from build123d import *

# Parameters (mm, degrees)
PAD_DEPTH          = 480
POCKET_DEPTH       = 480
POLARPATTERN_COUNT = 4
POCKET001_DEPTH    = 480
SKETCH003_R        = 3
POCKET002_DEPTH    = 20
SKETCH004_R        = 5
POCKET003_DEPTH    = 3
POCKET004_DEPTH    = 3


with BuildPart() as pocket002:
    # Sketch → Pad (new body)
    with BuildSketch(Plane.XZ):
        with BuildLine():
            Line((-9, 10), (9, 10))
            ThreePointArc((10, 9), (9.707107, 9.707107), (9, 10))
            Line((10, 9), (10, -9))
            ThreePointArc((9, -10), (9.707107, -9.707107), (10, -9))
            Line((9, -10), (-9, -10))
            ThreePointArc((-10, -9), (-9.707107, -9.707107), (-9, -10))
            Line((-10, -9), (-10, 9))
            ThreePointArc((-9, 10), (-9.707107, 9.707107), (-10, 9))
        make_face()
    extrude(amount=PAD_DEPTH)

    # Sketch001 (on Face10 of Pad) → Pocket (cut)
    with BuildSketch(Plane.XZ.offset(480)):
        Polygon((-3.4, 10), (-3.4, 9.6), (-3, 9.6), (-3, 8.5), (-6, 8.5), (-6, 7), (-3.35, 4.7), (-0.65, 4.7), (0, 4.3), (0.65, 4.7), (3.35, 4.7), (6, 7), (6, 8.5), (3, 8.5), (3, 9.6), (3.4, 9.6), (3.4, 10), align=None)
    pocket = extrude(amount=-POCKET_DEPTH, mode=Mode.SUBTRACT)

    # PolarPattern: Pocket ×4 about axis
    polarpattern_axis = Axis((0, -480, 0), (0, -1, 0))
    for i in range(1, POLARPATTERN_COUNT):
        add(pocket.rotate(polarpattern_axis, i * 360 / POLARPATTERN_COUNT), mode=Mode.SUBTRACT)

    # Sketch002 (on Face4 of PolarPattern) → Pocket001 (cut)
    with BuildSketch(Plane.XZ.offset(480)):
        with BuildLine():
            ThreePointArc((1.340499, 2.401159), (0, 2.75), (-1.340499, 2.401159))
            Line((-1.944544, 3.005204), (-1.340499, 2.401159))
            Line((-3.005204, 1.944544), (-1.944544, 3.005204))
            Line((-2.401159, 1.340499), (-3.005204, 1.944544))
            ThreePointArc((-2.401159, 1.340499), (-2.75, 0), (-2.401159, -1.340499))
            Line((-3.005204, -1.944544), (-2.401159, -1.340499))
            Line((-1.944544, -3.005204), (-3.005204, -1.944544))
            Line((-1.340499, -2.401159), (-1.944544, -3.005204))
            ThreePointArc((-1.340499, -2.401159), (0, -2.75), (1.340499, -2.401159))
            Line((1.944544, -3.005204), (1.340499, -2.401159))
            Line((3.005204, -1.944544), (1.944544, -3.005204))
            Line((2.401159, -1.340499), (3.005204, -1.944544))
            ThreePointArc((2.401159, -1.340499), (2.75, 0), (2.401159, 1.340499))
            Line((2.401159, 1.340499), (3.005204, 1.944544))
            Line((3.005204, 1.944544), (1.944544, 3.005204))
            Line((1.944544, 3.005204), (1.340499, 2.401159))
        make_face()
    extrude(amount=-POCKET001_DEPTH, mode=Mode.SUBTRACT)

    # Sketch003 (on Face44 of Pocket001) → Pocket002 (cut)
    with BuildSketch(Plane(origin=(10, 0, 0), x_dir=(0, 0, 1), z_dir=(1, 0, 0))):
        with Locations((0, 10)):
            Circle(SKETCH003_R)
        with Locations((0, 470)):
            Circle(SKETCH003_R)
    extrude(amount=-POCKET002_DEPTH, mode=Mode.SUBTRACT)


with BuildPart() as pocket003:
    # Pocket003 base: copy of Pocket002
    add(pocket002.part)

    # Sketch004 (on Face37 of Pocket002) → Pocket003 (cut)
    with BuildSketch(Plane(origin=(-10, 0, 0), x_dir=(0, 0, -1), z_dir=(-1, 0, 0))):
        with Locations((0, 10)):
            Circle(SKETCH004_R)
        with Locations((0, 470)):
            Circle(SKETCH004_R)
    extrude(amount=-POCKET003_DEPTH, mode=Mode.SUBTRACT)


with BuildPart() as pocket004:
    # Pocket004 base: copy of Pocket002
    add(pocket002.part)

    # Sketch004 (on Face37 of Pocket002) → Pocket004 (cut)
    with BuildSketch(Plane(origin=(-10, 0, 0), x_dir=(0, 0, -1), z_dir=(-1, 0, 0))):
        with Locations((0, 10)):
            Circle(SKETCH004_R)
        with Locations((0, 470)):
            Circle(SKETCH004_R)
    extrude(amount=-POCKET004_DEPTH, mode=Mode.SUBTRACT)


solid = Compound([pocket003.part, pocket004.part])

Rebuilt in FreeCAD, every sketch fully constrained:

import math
import FreeCAD as App
import Part
import Sketcher


def add_polygon(sketch, points):
    """Adds a closed chain of lines whose ends are joined by coincident constraints."""
    first, n = sketch.GeometryCount, len(points)
    for a, b in zip(points, points[1:] + points[:1]):
        sketch.addGeometry(Part.LineSegment(App.Vector(*a, 0), App.Vector(*b, 0)), False)
    for i in range(n):
        sketch.addConstraint(Sketcher.Constraint("Coincident", first + i, 2, first + (i + 1) % n, 1))

doc = App.newDocument("Part")
params = doc.addObject("Spreadsheet::Sheet", "Params")
for row, (alias, value) in enumerate([
    ("sketch1_radius", "0.999999 mm"),
    ("sketch1_width", "18 mm"),
    ("pad1_length", "480 mm"),
    ("sketch2_width", "3 mm"),
    ("sketch2_width2", "0.4 mm"),
    ("sketch2_width3", "2.7 mm"),
    ("sketch2_width4", "6.8 mm"),
    ("sketch2_height", "1.1 mm"),
    ("pocket1_length", "480 mm"),
    ("sketch3_length", "1.5 mm"),
    ("pocket2_length", "480 mm"),
    ("sketch4_diameter", "6 mm"),
    ("pocket3_length", "20 mm"),
    ("sketch5_diameter", "10 mm"),
    ("pocket4_length", "3 mm"),
    ("sketch6_diameter", "10 mm"),
    ("pocket5_length", "3 mm"),
], start=1):
    params.set(f"A{row}", alias)
    params.set(f"B{row}", "=" + value)
    params.setAlias(f"B{row}", alias)

body = doc.addObject("PartDesign::Body", "Body")

# Sketch on XZ plane
sketch1 = body.newObject("Sketcher::SketchObject", "Sketch")
sketch1.AttachmentSupport = (doc.getObject("XZ_Plane"), [""])
sketch1.MapMode = "FlatFace"
sketch1.addGeometry(Part.LineSegment(App.Vector(9, 10, 0), App.Vector(-9, 10, 0)), False)
sketch1.addGeometry(Part.ArcOfCircle(Part.Circle(App.Vector(-9, 9, 0), App.Vector(0, 0, 1), 1), math.radians(90), math.radians(180)), False)
sketch1.addGeometry(Part.LineSegment(App.Vector(-10, 9, 0), App.Vector(-10, -9, 0)), False)
sketch1.addGeometry(Part.ArcOfCircle(Part.Circle(App.Vector(-9, -9, 0), App.Vector(0, 0, 1), 1), math.radians(180), math.radians(270)), False)
sketch1.addGeometry(Part.LineSegment(App.Vector(-9, -10, 0), App.Vector(9, -10, 0)), False)
sketch1.addGeometry(Part.ArcOfCircle(Part.Circle(App.Vector(9, -9, 0), App.Vector(0, 0, 1), 1), math.radians(-90), math.radians(0)), False)
sketch1.addGeometry(Part.LineSegment(App.Vector(10, -9, 0), App.Vector(10, 9, 0)), False)
sketch1.addGeometry(Part.ArcOfCircle(Part.Circle(App.Vector(9, 9, 0), App.Vector(0, 0, 1), 1), math.radians(0), math.radians(90)), False)
sketch1.addConstraint(Sketcher.Constraint("Tangent", 0, 2, 1, 1))
sketch1.addConstraint(Sketcher.Constraint("Tangent", 1, 2, 2, 1))
sketch1.addConstraint(Sketcher.Constraint("Tangent", 2, 2, 3, 1))
sketch1.addConstraint(Sketcher.Constraint("Tangent", 3, 2, 4, 1))
sketch1.addConstraint(Sketcher.Constraint("Tangent", 4, 2, 5, 1))
sketch1.addConstraint(Sketcher.Constraint("Tangent", 5, 2, 6, 1))
sketch1.addConstraint(Sketcher.Constraint("Tangent", 6, 2, 7, 1))
sketch1.addConstraint(Sketcher.Constraint("Tangent", 7, 2, 0, 1))
sketch1.addConstraint(Sketcher.Constraint("Horizontal", 0))
sketch1.addConstraint(Sketcher.Constraint("Vertical", 2))
sketch1.addConstraint(Sketcher.Constraint("Horizontal", 4))
sketch1.addConstraint(Sketcher.Constraint("Vertical", 6))
sketch1.addConstraint(Sketcher.Constraint("Equal", 1, 3))
sketch1.addConstraint(Sketcher.Constraint("Equal", 3, 5))
sketch1.addConstraint(Sketcher.Constraint("Equal", 5, 7))
sketch1.addConstraint(Sketcher.Constraint("Symmetric", 1, 3, 5, 3, -1, 1))
sketch1.addConstraint(Sketcher.Constraint("Equal", 4, 2))
sketch1.addConstraint(Sketcher.Constraint("Radius", 1, 0.999999))
sketch1.addConstraint(Sketcher.Constraint("DistanceX", 0, 2, 0, 1, 18.0))
sketch1.setExpression("Constraints[17]", "Params.sketch1_radius")
sketch1.setExpression("Constraints[18]", "Params.sketch1_width")
pad1 = body.newObject("PartDesign::Pad", "Pad")
pad1.Profile = sketch1
pad1.setExpression("Length", "Params.pad1_length")

# Sketch on XZ plane
sketch2 = body.newObject("Sketcher::SketchObject", "Sketch001")
sketch2.AttachmentSupport = (doc.getObject("XZ_Plane"), [""])
sketch2.MapMode = "FlatFace"
sketch2.AttachmentOffset = App.Placement(App.Vector(0, 0, 480), App.Rotation())
add_polygon(sketch2, [(-3.4, 10), (-3.4, 9.6), (-3, 9.6), (-3, 8.5), (-6, 8.5), (-6, 7), (-3.35, 4.7), (-0.65, 4.7), (0, 4.3), (0.65, 4.7), (3.35, 4.7), (6, 7), (6, 8.5), (3, 8.5), (3, 9.6), (3.4, 9.6), (3.4, 10)])  # lines 0-16
sketch2.addConstraint(Sketcher.Constraint("Vertical", 0))
sketch2.addConstraint(Sketcher.Constraint("Horizontal", 1))
sketch2.addConstraint(Sketcher.Constraint("Vertical", 2))
sketch2.addConstraint(Sketcher.Constraint("Horizontal", 3))
sketch2.addConstraint(Sketcher.Constraint("Vertical", 4))
sketch2.addConstraint(Sketcher.Constraint("Horizontal", 6))
sketch2.addConstraint(Sketcher.Constraint("Horizontal", 9))
sketch2.addConstraint(Sketcher.Constraint("Vertical", 11))
sketch2.addConstraint(Sketcher.Constraint("Horizontal", 12))
sketch2.addConstraint(Sketcher.Constraint("Vertical", 13))
sketch2.addConstraint(Sketcher.Constraint("Horizontal", 14))
sketch2.addConstraint(Sketcher.Constraint("Vertical", 15))
sketch2.addConstraint(Sketcher.Constraint("Horizontal", 16))
sketch2.addConstraint(Sketcher.Constraint("Symmetric", 6, 2, 8, 2, -2))
sketch2.addConstraint(Sketcher.Constraint("Symmetric", 4, 2, 10, 2, -2))
sketch2.addConstraint(Sketcher.Constraint("Symmetric", 2, 2, 12, 2, -2))
sketch2.addConstraint(Sketcher.Constraint("Symmetric", 0, 2, 14, 2, -2))
sketch2.addConstraint(Sketcher.Constraint("PointOnObject", 7, 2, -2))
sketch2.addConstraint(Sketcher.Constraint("Equal", 6, 9))
sketch2.addConstraint(Sketcher.Constraint("Equal", 14, 0))
sketch2.addConstraint(Sketcher.Constraint("DistanceX", 3, 2, 3, 1, 3.0))
sketch2.addConstraint(Sketcher.Constraint("DistanceX", 1, 1, 1, 2, 0.4))
sketch2.addConstraint(Sketcher.Constraint("DistanceX", 6, 1, 6, 2, 2.7))
sketch2.addConstraint(Sketcher.Constraint("DistanceX", 16, 2, 16, 1, 6.8))
sketch2.addConstraint(Sketcher.Constraint("DistanceY", 2, 2, 2, 1, 1.1))
sketch2.addConstraint(Sketcher.Constraint("DistanceY", 4, 2, 4, 1, 1.5))
sketch2.addConstraint(Sketcher.Constraint("DistanceY", -1, 1, 4, 2, 7.0))
sketch2.addConstraint(Sketcher.Constraint("DistanceX", 5, 2, 8, 2, 4.0))
sketch2.addConstraint(Sketcher.Constraint("DistanceY", -1, 1, 5, 2, 4.7))
sketch2.addConstraint(Sketcher.Constraint("DistanceY", -1, 1, 7, 2, 4.3))
sketch2.setExpression("Constraints[37]", "Params.sketch2_width")
sketch2.setExpression("Constraints[38]", "Params.sketch2_width2")
sketch2.setExpression("Constraints[39]", "Params.sketch2_width3")
sketch2.setExpression("Constraints[40]", "Params.sketch2_width4")
sketch2.setExpression("Constraints[41]", "Params.sketch2_height")
pocket1 = body.newObject("PartDesign::Pocket", "Pocket")
pocket1.Profile = sketch2
pocket1.setExpression("Length", "Params.pocket1_length")
doc.recompute()

polarpattern = body.newObject("PartDesign::PolarPattern", "PolarPattern")
polarpattern.Originals = [pocket1]
polarpattern.Axis = (doc.getObject("Y_Axis"), [""])
polarpattern.Angle = 360
polarpattern.Occurrences = 4
body.Tip = polarpattern

# Sketch on XZ plane
sketch3 = body.newObject("Sketcher::SketchObject", "Sketch002")
sketch3.AttachmentSupport = (doc.getObject("XZ_Plane"), [""])
sketch3.MapMode = "FlatFace"
sketch3.AttachmentOffset = App.Placement(App.Vector(0, 0, 480), App.Rotation())
sketch3.addGeometry(Part.ArcOfCircle(Part.Circle(App.Vector(0, 0, 0), App.Vector(0, 0, 1), 2.8), math.radians(61), math.radians(119)), False)
sketch3.addGeometry(Part.LineSegment(App.Vector(-1.3, 2.4, 0), App.Vector(-1.9, 3, 0)), False)
sketch3.addGeometry(Part.LineSegment(App.Vector(-1.9, 3, 0), App.Vector(-3, 1.9, 0)), False)
sketch3.addGeometry(Part.LineSegment(App.Vector(-3, 1.9, 0), App.Vector(-2.4, 1.3, 0)), False)
sketch3.addGeometry(Part.ArcOfCircle(Part.Circle(App.Vector(0, 0, 0), App.Vector(0, 0, 1), 2.8), math.radians(151), math.radians(209)), False)
sketch3.addGeometry(Part.LineSegment(App.Vector(-2.4, -1.3, 0), App.Vector(-3, -1.9, 0)), False)
sketch3.addGeometry(Part.LineSegment(App.Vector(-3, -1.9, 0), App.Vector(-1.9, -3, 0)), False)
sketch3.addGeometry(Part.LineSegment(App.Vector(-1.9, -3, 0), App.Vector(-1.3, -2.4, 0)), False)
sketch3.addGeometry(Part.ArcOfCircle(Part.Circle(App.Vector(0, 0, 0), App.Vector(0, 0, 1), 2.8), math.radians(-119), math.radians(-61)), False)
sketch3.addGeometry(Part.LineSegment(App.Vector(1.3, -2.4, 0), App.Vector(1.9, -3, 0)), False)
sketch3.addGeometry(Part.LineSegment(App.Vector(1.9, -3, 0), App.Vector(3, -1.9, 0)), False)
sketch3.addGeometry(Part.LineSegment(App.Vector(3, -1.9, 0), App.Vector(2.4, -1.3, 0)), False)
sketch3.addGeometry(Part.ArcOfCircle(Part.Circle(App.Vector(0, 0, 0), App.Vector(0, 0, 1), 2.8), math.radians(-29), math.radians(29)), False)
sketch3.addGeometry(Part.LineSegment(App.Vector(2.4, 1.3, 0), App.Vector(3, 1.9, 0)), False)
sketch3.addGeometry(Part.LineSegment(App.Vector(3, 1.9, 0), App.Vector(1.9, 3, 0)), False)
sketch3.addGeometry(Part.LineSegment(App.Vector(1.9, 3, 0), App.Vector(1.3, 2.4, 0)), False)
sketch3.addConstraint(Sketcher.Constraint("Coincident", 0, 2, 1, 1))
sketch3.addConstraint(Sketcher.Constraint("Coincident", 1, 2, 2, 1))
sketch3.addConstraint(Sketcher.Constraint("Coincident", 2, 2, 3, 1))
sketch3.addConstraint(Sketcher.Constraint("Coincident", 3, 2, 4, 1))
sketch3.addConstraint(Sketcher.Constraint("Coincident", 4, 2, 5, 1))
sketch3.addConstraint(Sketcher.Constraint("Coincident", 5, 2, 6, 1))
sketch3.addConstraint(Sketcher.Constraint("Coincident", 6, 2, 7, 1))
sketch3.addConstraint(Sketcher.Constraint("Coincident", 7, 2, 8, 1))
sketch3.addConstraint(Sketcher.Constraint("Coincident", 8, 2, 9, 1))
sketch3.addConstraint(Sketcher.Constraint("Coincident", 9, 2, 10, 1))
sketch3.addConstraint(Sketcher.Constraint("Coincident", 10, 2, 11, 1))
sketch3.addConstraint(Sketcher.Constraint("Coincident", 11, 2, 12, 1))
sketch3.addConstraint(Sketcher.Constraint("Coincident", 12, 2, 13, 1))
sketch3.addConstraint(Sketcher.Constraint("Coincident", 13, 2, 14, 1))
sketch3.addConstraint(Sketcher.Constraint("Coincident", 14, 2, 15, 1))
sketch3.addConstraint(Sketcher.Constraint("Coincident", 15, 2, 0, 1))
sketch3.addConstraint(Sketcher.Constraint("Coincident", 0, 3, -1, 1))
sketch3.addConstraint(Sketcher.Constraint("Coincident", 4, 3, -1, 1))
sketch3.addConstraint(Sketcher.Constraint("Coincident", 8, 3, -1, 1))
sketch3.addConstraint(Sketcher.Constraint("Coincident", 12, 3, -1, 1))
sketch3.addConstraint(Sketcher.Constraint("Equal", 0, 4))
sketch3.addConstraint(Sketcher.Constraint("Equal", 4, 8))
sketch3.addConstraint(Sketcher.Constraint("Equal", 8, 12))
sketch3.addConstraint(Sketcher.Constraint("Symmetric", 1, 2, 9, 2, -1, 1))
sketch3.addConstraint(Sketcher.Constraint("Symmetric", 2, 2, 10, 2, -1, 1))
sketch3.addConstraint(Sketcher.Constraint("Symmetric", 5, 2, 13, 2, -1, 1))
sketch3.addConstraint(Sketcher.Constraint("Symmetric", 6, 2, 14, 2, -1, 1))
sketch3.addConstraint(Sketcher.Constraint("Symmetric", 6, 2, 9, 2, -2))
sketch3.addConstraint(Sketcher.Constraint("Symmetric", 5, 2, 10, 2, -2))
sketch3.addConstraint(Sketcher.Constraint("Perpendicular", 1, 2))
sketch3.addConstraint(Sketcher.Constraint("Perpendicular", 2, 3))
sketch3.addConstraint(Sketcher.Constraint("Perpendicular", 3, 5))
sketch3.addConstraint(Sketcher.Constraint("Perpendicular", 5, 6))
sketch3.addConstraint(Sketcher.Constraint("Perpendicular", 6, 7))
sketch3.addConstraint(Sketcher.Constraint("Perpendicular", 7, 9))
sketch3.addConstraint(Sketcher.Constraint("Perpendicular", 10, 11))
sketch3.addConstraint(Sketcher.Constraint("Perpendicular", 11, 13))
sketch3.addConstraint(Sketcher.Constraint("Perpendicular", 14, 15))
sketch3.addConstraint(Sketcher.Constraint("Equal", 1, 3))
sketch3.addConstraint(Sketcher.Constraint("Distance", 2, 1.5))
sketch3.addConstraint(Sketcher.Constraint("Radius", 0, 2.750003))
sketch3.addConstraint(Sketcher.Constraint("DistanceY", 8, 3, 1, 2, 3.005201))
sketch3.setExpression("Constraints[39]", "Params.sketch3_length")
pocket2 = body.newObject("PartDesign::Pocket", "Pocket001")
pocket2.Profile = sketch3
pocket2.setExpression("Length", "Params.pocket2_length")

# Sketch on YZ plane
sketch4 = body.newObject("Sketcher::SketchObject", "Sketch003")
sketch4.AttachmentSupport = (doc.getObject("YZ_Plane"), [""])
sketch4.MapMode = "FlatFace"
sketch4.AttachmentOffset = App.Placement(App.Vector(0, 0, 10), App.Rotation())
sketch4.addGeometry(Part.Circle(App.Vector(-10, 0, 0), App.Vector(0, 0, 1), 3), False)
sketch4.addGeometry(Part.Circle(App.Vector(-470, 0, 0), App.Vector(0, 0, 1), 3), False)
sketch4.addConstraint(Sketcher.Constraint("Equal", 0, 1))
sketch4.addConstraint(Sketcher.Constraint("PointOnObject", 0, 3, -1))
sketch4.addConstraint(Sketcher.Constraint("PointOnObject", 1, 3, -1))
sketch4.addConstraint(Sketcher.Constraint("Diameter", 0, 6.0))
sketch4.addConstraint(Sketcher.Constraint("DistanceX", 0, 3, -1, 1, 10.0))
sketch4.addConstraint(Sketcher.Constraint("DistanceX", 1, 3, -1, 1, 470.0))
sketch4.setExpression("Constraints[3]", "Params.sketch4_diameter")
pocket3 = body.newObject("PartDesign::Pocket", "Pocket002")
pocket3.Profile = sketch4
pocket3.setExpression("Length", "Params.pocket3_length")
body2 = doc.addObject("PartDesign::Body", "Body001")
doc.recompute()

body2.BaseFeature = body
doc.recompute()

# Sketch on YZ plane
sketch5 = body2.newObject("Sketcher::SketchObject", "Sketch004")
sketch5.AttachmentSupport = (doc.getObject("YZ_Plane001"), [""])
sketch5.MapMode = "FlatFace"
sketch5.AttachmentOffset = App.Placement(App.Vector(0, 0, -10), App.Rotation())
sketch5.addGeometry(Part.Circle(App.Vector(-10, 0, 0), App.Vector(0, 0, 1), 5), False)
sketch5.addGeometry(Part.Circle(App.Vector(-470, 0, 0), App.Vector(0, 0, 1), 5), False)
sketch5.addConstraint(Sketcher.Constraint("Equal", 0, 1))
sketch5.addConstraint(Sketcher.Constraint("PointOnObject", 0, 3, -1))
sketch5.addConstraint(Sketcher.Constraint("PointOnObject", 1, 3, -1))
sketch5.addConstraint(Sketcher.Constraint("Diameter", 0, 10.0))
sketch5.addConstraint(Sketcher.Constraint("DistanceX", 0, 3, -1, 1, 10.0))
sketch5.addConstraint(Sketcher.Constraint("DistanceX", 1, 3, -1, 1, 470.0))
sketch5.setExpression("Constraints[3]", "Params.sketch5_diameter")
pocket4 = body2.newObject("PartDesign::Pocket", "Pocket003")
pocket4.Profile = sketch5
pocket4.setExpression("Length", "Params.pocket4_length")
pocket4.Reversed = True

# Sketch on YZ plane
sketch6 = body.newObject("Sketcher::SketchObject", "Sketch005")
sketch6.AttachmentSupport = (doc.getObject("YZ_Plane"), [""])
sketch6.MapMode = "FlatFace"
sketch6.AttachmentOffset = App.Placement(App.Vector(0, 0, -10), App.Rotation())
sketch6.addGeometry(Part.Circle(App.Vector(-10, 0, 0), App.Vector(0, 0, 1), 5), False)
sketch6.addGeometry(Part.Circle(App.Vector(-470, 0, 0), App.Vector(0, 0, 1), 5), False)
sketch6.addConstraint(Sketcher.Constraint("Equal", 0, 1))
sketch6.addConstraint(Sketcher.Constraint("PointOnObject", 0, 3, -1))
sketch6.addConstraint(Sketcher.Constraint("PointOnObject", 1, 3, -1))
sketch6.addConstraint(Sketcher.Constraint("Diameter", 0, 10.0))
sketch6.addConstraint(Sketcher.Constraint("DistanceX", 0, 3, -1, 1, 10.0))
sketch6.addConstraint(Sketcher.Constraint("DistanceX", 1, 3, -1, 1, 470.0))
sketch6.setExpression("Constraints[3]", "Params.sketch6_diameter")
pocket5 = body.newObject("PartDesign::Pocket", "Pocket004")
pocket5.Profile = sketch6
pocket5.setExpression("Length", "Params.pocket5_length")
pocket5.Reversed = True

doc.recompute()
